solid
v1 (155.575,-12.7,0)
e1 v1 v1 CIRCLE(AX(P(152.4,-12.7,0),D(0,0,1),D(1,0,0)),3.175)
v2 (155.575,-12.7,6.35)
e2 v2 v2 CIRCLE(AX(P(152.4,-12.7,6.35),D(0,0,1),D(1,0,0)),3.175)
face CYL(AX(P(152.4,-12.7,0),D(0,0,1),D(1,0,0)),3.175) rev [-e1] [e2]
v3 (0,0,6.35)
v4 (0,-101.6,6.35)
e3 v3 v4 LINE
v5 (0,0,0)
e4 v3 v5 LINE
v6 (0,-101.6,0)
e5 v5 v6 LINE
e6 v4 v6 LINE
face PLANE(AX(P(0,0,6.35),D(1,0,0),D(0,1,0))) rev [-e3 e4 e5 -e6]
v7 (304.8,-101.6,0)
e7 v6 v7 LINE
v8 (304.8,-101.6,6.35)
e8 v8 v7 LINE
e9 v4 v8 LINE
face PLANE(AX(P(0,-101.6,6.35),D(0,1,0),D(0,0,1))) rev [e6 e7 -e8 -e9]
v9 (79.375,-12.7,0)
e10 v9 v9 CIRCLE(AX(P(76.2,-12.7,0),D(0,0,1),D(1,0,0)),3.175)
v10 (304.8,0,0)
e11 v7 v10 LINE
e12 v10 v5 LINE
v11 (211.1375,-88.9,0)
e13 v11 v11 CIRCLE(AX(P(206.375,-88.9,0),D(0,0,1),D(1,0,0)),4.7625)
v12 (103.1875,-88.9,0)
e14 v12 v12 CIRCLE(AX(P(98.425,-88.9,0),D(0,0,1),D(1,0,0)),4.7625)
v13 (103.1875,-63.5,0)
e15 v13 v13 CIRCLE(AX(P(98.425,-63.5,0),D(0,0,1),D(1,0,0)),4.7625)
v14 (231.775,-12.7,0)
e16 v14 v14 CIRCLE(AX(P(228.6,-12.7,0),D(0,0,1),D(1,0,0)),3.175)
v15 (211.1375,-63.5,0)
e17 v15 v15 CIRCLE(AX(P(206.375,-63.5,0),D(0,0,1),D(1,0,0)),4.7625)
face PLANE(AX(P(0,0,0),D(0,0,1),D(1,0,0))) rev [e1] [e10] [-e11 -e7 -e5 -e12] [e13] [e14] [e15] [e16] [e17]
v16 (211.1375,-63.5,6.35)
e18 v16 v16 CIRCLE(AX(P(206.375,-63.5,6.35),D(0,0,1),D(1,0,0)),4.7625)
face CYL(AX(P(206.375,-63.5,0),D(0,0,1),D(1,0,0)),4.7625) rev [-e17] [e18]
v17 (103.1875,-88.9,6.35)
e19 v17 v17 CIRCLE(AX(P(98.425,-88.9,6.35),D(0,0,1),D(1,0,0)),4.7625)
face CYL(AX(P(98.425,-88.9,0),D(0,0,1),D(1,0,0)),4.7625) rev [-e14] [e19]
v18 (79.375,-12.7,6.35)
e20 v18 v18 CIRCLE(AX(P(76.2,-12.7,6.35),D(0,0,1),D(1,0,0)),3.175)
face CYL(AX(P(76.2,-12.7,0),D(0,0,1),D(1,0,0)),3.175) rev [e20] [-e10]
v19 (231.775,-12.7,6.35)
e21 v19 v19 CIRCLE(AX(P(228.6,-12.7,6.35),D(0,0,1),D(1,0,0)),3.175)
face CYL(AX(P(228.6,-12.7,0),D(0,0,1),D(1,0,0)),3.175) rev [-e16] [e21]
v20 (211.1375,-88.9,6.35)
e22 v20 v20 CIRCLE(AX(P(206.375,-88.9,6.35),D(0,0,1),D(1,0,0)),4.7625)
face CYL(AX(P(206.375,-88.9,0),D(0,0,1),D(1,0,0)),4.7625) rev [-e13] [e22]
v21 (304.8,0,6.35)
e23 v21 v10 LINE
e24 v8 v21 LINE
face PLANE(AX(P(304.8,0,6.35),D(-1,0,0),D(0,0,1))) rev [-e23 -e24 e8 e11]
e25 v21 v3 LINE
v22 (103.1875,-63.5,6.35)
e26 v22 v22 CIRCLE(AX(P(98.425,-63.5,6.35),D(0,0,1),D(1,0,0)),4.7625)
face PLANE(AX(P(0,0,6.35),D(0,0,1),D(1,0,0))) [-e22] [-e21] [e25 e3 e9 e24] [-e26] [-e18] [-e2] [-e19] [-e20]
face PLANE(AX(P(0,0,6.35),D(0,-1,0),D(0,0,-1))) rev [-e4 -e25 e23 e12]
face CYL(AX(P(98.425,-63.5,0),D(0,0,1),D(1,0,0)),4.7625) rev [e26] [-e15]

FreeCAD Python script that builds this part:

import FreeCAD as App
import Part
import Sketcher

V = App.Vector
Q = App.Units.Quantity


def add_polygon(sketch, points):
    """Adds a closed chain of lines whose ends are joined by coincident constraints."""
    first, n = sketch.GeometryCount, len(points)
    for a, b in zip(points, points[1:] + points[:1]):
        sketch.addGeometry(Part.LineSegment(App.Vector(*a, 0), App.Vector(*b, 0)), False)
    for i in range(n):
        sketch.addConstraint(Sketcher.Constraint("Coincident", first + i, 2, first + (i + 1) % n, 1))

doc = App.newDocument("Part")
body = doc.addObject("PartDesign::Body", "Body")

sketch1 = body.newObject("Sketcher::SketchObject", "Sketch")
sketch1.AttachmentSupport = (doc.getObject("XY_Plane"), [""])
sketch1.MapMode = "FlatFace"
add_polygon(sketch1, [(0, 0), (0, -102), (305, -102), (305, 0)])
sketch1.addConstraint([
    Sketcher.Constraint("Vertical", 0),
    Sketcher.Constraint("Horizontal", 1),
    Sketcher.Constraint("Vertical", 2),
    Sketcher.Constraint("Horizontal", 3),
    Sketcher.Constraint("Coincident", 3, 2, -1, 1),
    Sketcher.Constraint("DistanceX", 1, 1, 1, 2, Q("12 in")),
    Sketcher.Constraint("DistanceY", 0, 2, 0, 1, Q("4 in")),
])
pad1 = body.newObject("PartDesign::Pad", "Pad")
pad1.Profile = sketch1
pad1.Length = Q("0.25 in")

sketch2 = body.newObject("Sketcher::SketchObject", "Sketch001")
sketch2.AttachmentSupport = (doc.getObject("XY_Plane"), [""])
sketch2.MapMode = "FlatFace"
sketch2.AttachmentOffset = App.Placement(V(0, 0, 0.25 * 25.4), App.Rotation())
sketch2.addGeometry([
    Part.Circle(V(76.2, -12.7, 0), V(0, 0, 1), 3.2),
    Part.Circle(V(152.4, -12.7, 0), V(0, 0, 1), 3.2),
    Part.Circle(V(228.6, -12.7, 0), V(0, 0, 1), 3.2),
    Part.Circle(V(98.4, -63.5, 0), V(0, 0, 1), 4.8),
    Part.Circle(V(206.4, -63.5, 0), V(0, 0, 1), 4.8),
    Part.Circle(V(98.4, -88.9, 0), V(0, 0, 1), 4.8),
    Part.Circle(V(206.4, -88.9, 0), V(0, 0, 1), 4.8),
], False)
sketch2.addConstraint([
    Sketcher.Constraint("Equal", 0, 1),
    Sketcher.Constraint("Equal", 1, 2),
    Sketcher.Constraint("Equal", 3, 4),
    Sketcher.Constraint("Equal", 4, 5),
    Sketcher.Constraint("Equal", 5, 6),
    Sketcher.Constraint("Horizontal", 0, 3, 1, 3),
    Sketcher.Constraint("Horizontal", 1, 3, 2, 3),
    Sketcher.Constraint("Horizontal", 3, 3, 4, 3),
    Sketcher.Constraint("Horizontal", 5, 3, 6, 3),
    Sketcher.Constraint("Vertical", 3, 3, 5, 3),
    Sketcher.Constraint("Vertical", 4, 3, 6, 3),
    Sketcher.Constraint("Diameter", 0, Q("0.25 in")),
    Sketcher.Constraint("Diameter", 3, Q("0.375 in")),
    Sketcher.Constraint("DistanceX", -1, 1, 0, 3, Q("3 in")),
    Sketcher.Constraint("DistanceX", -1, 1, 1, 3, Q("6 in")),
    Sketcher.Constraint("DistanceX", -1, 1, 2, 3, Q("9 in")),
    Sketcher.Constraint("DistanceY", 3, 3, 0, 3, Q("2 in")),
    Sketcher.Constraint("DistanceY", 5, 3, 3, 3, Q("1 in")),
    Sketcher.Constraint("DistanceY", 0, 3, -1, 1, Q("0.5 in")),
    Sketcher.Constraint("DistanceX", 3, 3, 4, 3, Q("4.25 in")),
    Sketcher.Constraint("DistanceX", -1, 1, 3, 3, Q("3.875 in")),
])
pocket1 = body.newObject("PartDesign::Pocket", "Pocket")
pocket1.Profile = sketch2
pocket1.Length = Q("0.25 in")

doc.recompute()
